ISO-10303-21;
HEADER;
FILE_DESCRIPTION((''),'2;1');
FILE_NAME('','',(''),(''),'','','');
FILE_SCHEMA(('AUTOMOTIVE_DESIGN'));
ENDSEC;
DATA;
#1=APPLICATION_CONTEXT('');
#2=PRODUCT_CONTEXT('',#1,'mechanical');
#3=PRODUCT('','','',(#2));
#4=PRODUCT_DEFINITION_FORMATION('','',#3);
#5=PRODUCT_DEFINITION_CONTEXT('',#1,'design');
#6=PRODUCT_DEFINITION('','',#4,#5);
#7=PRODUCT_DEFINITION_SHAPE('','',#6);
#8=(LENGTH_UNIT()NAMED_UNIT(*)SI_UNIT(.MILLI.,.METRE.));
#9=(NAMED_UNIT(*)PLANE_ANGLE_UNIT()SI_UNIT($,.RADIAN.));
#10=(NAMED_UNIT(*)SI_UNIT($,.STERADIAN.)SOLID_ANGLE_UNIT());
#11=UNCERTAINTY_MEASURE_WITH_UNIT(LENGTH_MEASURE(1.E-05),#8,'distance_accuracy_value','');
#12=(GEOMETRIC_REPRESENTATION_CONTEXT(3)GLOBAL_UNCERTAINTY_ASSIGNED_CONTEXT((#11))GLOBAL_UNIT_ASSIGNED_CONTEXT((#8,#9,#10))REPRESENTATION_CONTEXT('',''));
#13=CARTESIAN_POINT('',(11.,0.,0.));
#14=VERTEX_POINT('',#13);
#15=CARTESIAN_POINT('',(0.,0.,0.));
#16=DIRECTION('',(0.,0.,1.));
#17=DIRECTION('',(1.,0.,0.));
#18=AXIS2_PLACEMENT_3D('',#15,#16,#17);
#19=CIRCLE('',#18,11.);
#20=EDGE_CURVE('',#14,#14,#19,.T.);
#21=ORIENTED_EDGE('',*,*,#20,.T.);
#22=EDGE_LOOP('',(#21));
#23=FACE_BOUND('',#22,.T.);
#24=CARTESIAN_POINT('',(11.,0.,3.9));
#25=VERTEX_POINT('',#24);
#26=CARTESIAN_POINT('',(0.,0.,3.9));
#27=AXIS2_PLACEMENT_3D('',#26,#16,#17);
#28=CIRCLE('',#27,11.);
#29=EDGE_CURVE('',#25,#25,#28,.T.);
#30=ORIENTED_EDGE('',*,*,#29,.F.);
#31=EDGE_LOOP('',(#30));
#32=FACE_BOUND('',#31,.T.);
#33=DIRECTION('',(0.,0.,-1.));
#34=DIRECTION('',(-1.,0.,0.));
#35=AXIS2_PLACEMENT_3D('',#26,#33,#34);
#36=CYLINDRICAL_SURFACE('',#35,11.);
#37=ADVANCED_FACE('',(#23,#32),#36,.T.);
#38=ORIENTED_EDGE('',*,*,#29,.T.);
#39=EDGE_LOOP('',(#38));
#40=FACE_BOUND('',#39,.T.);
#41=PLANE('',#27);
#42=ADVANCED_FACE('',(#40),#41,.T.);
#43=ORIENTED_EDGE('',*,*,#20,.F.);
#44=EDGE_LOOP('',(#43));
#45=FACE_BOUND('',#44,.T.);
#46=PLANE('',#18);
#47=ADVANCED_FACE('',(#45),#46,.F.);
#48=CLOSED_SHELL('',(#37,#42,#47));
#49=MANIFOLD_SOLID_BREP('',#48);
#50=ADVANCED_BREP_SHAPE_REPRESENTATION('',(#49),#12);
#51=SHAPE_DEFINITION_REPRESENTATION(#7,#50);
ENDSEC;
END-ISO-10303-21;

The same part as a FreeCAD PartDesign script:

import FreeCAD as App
import Part
import Sketcher

V = App.Vector

doc = App.newDocument("Part")
body = doc.addObject("PartDesign::Body", "Body")

# Sketch on XY plane
sketch1 = doc.addObject("Sketcher::SketchObject", "Sketch")
body.addObject(sketch1)
sketch1.AttachmentSupport = (doc.XY_Plane, [""])
sketch1.MapMode = "FlatFace"
sketch1.addGeometry(Part.Circle(V(0, 0, 0), V(0, 0, 1), 11), False)
sketch1.addConstraint(Sketcher.Constraint("Coincident", 0, 3, -1, 1))
sketch1.addConstraint(Sketcher.Constraint("Diameter", 0, 22.0))
pad1 = doc.addObject("PartDesign::Pad", "Pad")
body.addObject(pad1)
pad1.Profile = sketch1
pad1.Length = 3.9

doc.recompute()
